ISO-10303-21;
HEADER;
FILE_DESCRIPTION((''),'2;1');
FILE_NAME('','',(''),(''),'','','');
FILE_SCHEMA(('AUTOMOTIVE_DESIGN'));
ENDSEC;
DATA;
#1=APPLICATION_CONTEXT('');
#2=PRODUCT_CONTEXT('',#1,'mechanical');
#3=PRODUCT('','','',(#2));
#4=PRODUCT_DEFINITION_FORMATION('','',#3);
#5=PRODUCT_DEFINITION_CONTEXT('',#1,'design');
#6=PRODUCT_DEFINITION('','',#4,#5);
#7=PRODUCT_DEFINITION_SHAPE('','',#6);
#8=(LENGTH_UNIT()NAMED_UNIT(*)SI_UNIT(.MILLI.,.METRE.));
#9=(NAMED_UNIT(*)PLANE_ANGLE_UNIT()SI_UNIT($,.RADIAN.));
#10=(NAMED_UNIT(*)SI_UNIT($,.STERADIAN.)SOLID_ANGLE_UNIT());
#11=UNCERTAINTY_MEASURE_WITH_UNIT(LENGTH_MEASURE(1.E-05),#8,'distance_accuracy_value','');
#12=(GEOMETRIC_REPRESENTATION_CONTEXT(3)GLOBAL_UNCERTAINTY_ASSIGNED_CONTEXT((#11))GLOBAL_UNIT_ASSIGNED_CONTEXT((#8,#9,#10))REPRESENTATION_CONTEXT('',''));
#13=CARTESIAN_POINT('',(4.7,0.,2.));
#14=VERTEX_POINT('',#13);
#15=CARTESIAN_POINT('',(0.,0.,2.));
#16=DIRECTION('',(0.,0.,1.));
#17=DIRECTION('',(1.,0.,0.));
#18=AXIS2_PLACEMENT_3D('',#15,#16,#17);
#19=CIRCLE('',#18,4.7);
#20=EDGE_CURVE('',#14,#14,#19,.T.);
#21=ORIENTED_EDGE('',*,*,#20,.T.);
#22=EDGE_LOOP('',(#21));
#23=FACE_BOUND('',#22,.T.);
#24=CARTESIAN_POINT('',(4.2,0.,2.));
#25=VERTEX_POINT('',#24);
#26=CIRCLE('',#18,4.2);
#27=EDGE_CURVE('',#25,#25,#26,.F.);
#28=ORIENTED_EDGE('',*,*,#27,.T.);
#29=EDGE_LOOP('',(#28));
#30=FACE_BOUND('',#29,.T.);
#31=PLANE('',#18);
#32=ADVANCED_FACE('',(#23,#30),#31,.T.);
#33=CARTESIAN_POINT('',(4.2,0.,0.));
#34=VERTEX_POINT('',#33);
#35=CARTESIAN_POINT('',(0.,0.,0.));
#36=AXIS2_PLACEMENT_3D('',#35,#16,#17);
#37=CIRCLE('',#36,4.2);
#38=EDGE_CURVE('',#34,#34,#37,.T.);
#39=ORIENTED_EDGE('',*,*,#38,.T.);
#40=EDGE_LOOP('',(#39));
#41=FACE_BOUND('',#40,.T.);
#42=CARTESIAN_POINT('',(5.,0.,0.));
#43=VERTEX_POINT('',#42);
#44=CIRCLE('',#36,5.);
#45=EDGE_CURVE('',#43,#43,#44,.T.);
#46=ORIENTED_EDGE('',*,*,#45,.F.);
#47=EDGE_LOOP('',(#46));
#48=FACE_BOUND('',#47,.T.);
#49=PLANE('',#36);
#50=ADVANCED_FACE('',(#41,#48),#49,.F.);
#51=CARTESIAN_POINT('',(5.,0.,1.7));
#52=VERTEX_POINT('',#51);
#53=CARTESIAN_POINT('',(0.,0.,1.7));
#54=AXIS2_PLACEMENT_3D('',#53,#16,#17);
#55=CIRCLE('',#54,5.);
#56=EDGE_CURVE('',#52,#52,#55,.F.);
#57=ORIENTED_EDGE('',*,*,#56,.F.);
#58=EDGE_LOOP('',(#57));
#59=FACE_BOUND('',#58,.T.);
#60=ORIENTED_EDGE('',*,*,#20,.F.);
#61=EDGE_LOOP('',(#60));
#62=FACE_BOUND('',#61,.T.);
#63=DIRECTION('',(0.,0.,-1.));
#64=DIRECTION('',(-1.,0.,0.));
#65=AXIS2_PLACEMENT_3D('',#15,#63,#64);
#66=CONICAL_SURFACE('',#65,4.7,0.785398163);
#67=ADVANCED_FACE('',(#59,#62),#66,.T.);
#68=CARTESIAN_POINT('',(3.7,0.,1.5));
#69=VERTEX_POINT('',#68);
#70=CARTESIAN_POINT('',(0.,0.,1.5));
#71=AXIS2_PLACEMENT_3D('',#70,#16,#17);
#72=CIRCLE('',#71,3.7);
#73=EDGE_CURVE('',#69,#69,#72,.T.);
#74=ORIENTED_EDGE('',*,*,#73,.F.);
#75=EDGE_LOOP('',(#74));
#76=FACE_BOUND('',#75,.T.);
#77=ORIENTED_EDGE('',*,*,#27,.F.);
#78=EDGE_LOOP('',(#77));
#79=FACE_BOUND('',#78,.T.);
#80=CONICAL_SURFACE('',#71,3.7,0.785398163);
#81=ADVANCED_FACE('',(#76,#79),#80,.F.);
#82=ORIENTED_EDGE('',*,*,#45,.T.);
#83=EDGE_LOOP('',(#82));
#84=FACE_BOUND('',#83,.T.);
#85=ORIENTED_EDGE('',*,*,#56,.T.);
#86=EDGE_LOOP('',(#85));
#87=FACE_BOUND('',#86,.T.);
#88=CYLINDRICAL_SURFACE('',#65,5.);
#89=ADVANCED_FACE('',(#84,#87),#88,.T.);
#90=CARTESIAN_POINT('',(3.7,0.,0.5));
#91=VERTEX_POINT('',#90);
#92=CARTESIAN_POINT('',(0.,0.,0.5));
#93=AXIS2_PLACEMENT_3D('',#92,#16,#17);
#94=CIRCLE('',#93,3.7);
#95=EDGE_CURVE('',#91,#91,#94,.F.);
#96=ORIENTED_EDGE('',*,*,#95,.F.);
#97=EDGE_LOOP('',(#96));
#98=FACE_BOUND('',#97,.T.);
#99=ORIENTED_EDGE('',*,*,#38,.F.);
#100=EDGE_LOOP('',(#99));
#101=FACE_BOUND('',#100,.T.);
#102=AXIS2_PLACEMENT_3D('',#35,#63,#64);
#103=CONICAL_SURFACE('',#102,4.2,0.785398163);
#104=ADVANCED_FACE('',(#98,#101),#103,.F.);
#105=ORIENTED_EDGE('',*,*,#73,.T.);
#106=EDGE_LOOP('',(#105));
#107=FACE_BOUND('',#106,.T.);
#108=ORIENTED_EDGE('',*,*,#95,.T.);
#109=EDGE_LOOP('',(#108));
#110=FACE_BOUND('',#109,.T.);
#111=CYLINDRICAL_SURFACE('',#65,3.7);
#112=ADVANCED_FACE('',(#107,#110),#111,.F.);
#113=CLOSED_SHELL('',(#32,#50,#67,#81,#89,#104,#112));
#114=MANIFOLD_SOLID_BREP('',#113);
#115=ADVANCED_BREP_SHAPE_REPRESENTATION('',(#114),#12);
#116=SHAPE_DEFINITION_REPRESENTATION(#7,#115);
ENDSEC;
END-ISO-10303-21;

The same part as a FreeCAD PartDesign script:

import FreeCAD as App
import Part
import Sketcher

V = App.Vector
Q = App.Units.Quantity


def edges_at(feature, points):
    """Names of the edges that pass closest to the given points."""
    edges = feature.Shape.Edges
    near = lambda p: min(range(len(edges)), key=lambda i: edges[i].distToShape(Part.Vertex(*p))[0])
    return sorted({f"Edge{near(p) + 1}" for p in points})

doc = App.newDocument("Part")
body = doc.addObject("PartDesign::Body", "Body")

# Sketch on XY plane
sketch1 = body.newObject("Sketcher::SketchObject", "Sketch")
sketch1.AttachmentSupport = (doc.getObject("XY_Plane"), [""])
sketch1.MapMode = "FlatFace"
sketch1.addGeometry([
    Part.Circle(V(0, 0, 0), V(0, 0, 1), 5),
    Part.Circle(V(0, 0, 0), V(0, 0, 1), 3.7),
], False)
sketch1.addConstraint([
    Sketcher.Constraint("Coincident", 0, 3, -1, 1),
    Sketcher.Constraint("Coincident", 1, 3, -1, 1),
    Sketcher.Constraint("Diameter", 0, Q("10 mm")),
    Sketcher.Constraint("Diameter", 1, Q("7.4 mm")),
])
pad1 = body.newObject("PartDesign::Pad", "Pad")
pad1.Profile = sketch1
pad1.Length = 2
doc.recompute()

chamfer = body.newObject("PartDesign::Chamfer", "Chamfer")
chamfer.Base = (pad1, edges_at(pad1, [(-5, 0, 2)]))
chamfer.Size = 0.3
doc.recompute()

chamfer2 = body.newObject("PartDesign::Chamfer", "Chamfer001")
chamfer2.Base = (chamfer, edges_at(chamfer, [(-3.7, 0, 0), (-3.7, 0, 2)]))
chamfer2.Size = 0.5

doc.recompute()
